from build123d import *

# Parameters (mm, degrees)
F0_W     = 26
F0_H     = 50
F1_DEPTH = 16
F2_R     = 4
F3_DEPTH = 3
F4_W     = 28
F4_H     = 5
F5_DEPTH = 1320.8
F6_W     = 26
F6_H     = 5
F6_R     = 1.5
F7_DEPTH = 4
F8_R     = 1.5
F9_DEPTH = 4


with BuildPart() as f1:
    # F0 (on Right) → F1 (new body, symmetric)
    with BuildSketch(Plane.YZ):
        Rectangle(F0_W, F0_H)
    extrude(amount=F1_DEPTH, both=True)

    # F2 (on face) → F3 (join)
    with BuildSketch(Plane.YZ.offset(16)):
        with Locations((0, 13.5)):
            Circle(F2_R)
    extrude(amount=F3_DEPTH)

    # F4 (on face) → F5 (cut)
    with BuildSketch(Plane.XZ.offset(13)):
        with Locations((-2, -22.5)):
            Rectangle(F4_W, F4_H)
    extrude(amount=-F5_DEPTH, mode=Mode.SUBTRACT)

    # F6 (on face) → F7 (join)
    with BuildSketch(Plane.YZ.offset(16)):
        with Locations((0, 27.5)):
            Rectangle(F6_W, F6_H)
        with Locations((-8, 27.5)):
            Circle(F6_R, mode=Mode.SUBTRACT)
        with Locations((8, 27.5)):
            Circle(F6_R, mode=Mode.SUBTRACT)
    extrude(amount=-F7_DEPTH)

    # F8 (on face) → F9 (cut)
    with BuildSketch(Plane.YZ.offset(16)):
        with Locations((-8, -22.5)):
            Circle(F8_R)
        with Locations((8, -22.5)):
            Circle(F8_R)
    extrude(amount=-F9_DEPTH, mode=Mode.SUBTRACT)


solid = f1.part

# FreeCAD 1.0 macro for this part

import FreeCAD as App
import Part
import Sketcher
Q = App.Units.Quantity

doc = App.newDocument("Part")
body = doc.addObject("PartDesign::Body", "Body")

sketch1 = body.newObject("Sketcher::SketchObject", "Sketch")
sketch1.AttachmentSupport = (doc.getObject("YZ_Plane"), [""])
sketch1.MapMode = "FlatFace"
sketch1.addGeometry([
    Part.LineSegment(App.Vector(-13, 25, 0), App.Vector(-13, -25, 0)),
    Part.LineSegment(App.Vector(-13, -25, 0), App.Vector(13, -25, 0)),
    Part.LineSegment(App.Vector(13, -25, 0), App.Vector(13, 25, 0)),
    Part.LineSegment(App.Vector(13, 25, 0), App.Vector(-13, 25, 0)),
], False)
sketch1.addConstraint([
    Sketcher.Constraint("Coincident", 0, 2, 1, 1),
    Sketcher.Constraint("Coincident", 1, 2, 2, 1),
    Sketcher.Constraint("Coincident", 2, 2, 3, 1),
    Sketcher.Constraint("Coincident", 3, 2, 0, 1),
    Sketcher.Constraint("Vertical", 0),
    Sketcher.Constraint("Horizontal", 1),
    Sketcher.Constraint("Vertical", 2),
    Sketcher.Constraint("Horizontal", 3),
    Sketcher.Constraint("Symmetric", 0, 2, 2, 2, -1, 1),
    Sketcher.Constraint("DistanceX", 1, 1, 1, 2, Q("26 mm")),
    Sketcher.Constraint("DistanceY", 0, 2, 0, 1, Q("50 mm")),
])
pad1 = body.newObject("PartDesign::Pad", "Pad")
pad1.Profile = sketch1
pad1.Length = 32
pad1.Midplane = True

sketch2 = body.newObject("Sketcher::SketchObject", "Sketch001")
sketch2.AttachmentSupport = (doc.getObject("YZ_Plane"), [""])
sketch2.MapMode = "FlatFace"
sketch2.AttachmentOffset = App.Placement(App.Vector(0, 0, 16), App.Rotation())
sketch2.addGeometry(Part.Circle(App.Vector(0, 13.5, 0), App.Vector(0, 0, 1), 4), False)
sketch2.addConstraint([
    Sketcher.Constraint("PointOnObject", 0, 3, -2),
    Sketcher.Constraint("Diameter", 0, Q("8 mm")),
    Sketcher.Constraint("DistanceY", -1, 1, 0, 3, Q("13.5 mm")),
])
pad2 = body.newObject("PartDesign::Pad", "Pad001")
pad2.Profile = sketch2
pad2.Length = 3

sketch3 = body.newObject("Sketcher::SketchObject", "Sketch002")
sketch3.AttachmentSupport = (doc.getObject("XZ_Plane"), [""])
sketch3.MapMode = "FlatFace"
sketch3.AttachmentOffset = App.Placement(App.Vector(0, 0, 13), App.Rotation())
sketch3.addGeometry([
    Part.LineSegment(App.Vector(-16, -20, 0), App.Vector(-16, -25, 0)),
    Part.LineSegment(App.Vector(-16, -25, 0), App.Vector(12, -25, 0)),
    Part.LineSegment(App.Vector(12, -25, 0), App.Vector(12, -20, 0)),
    Part.LineSegment(App.Vector(12, -20, 0), App.Vector(-16, -20, 0)),
], False)
sketch3.addConstraint([
    Sketcher.Constraint("Coincident", 0, 2, 1, 1),
    Sketcher.Constraint("Coincident", 1, 2, 2, 1),
    Sketcher.Constraint("Coincident", 2, 2, 3, 1),
    Sketcher.Constraint("Coincident", 3, 2, 0, 1),
    Sketcher.Constraint("Vertical", 0),
    Sketcher.Constraint("Horizontal", 1),
    Sketcher.Constraint("Vertical", 2),
    Sketcher.Constraint("Horizontal", 3),
    Sketcher.Constraint("DistanceX", 1, 1, 1, 2, Q("28 mm")),
    Sketcher.Constraint("DistanceY", 0, 2, 0, 1, Q("5 mm")),
    Sketcher.Constraint("DistanceX", 0, 2, -1, 1, Q("16 mm")),
    Sketcher.Constraint("DistanceY", 0, 2, -1, 1, Q("25 mm")),
])
pocket1 = body.newObject("PartDesign::Pocket", "Pocket")
pocket1.Profile = sketch3
pocket1.Length = 1320.8

sketch4 = body.newObject("Sketcher::SketchObject", "Sketch003")
sketch4.AttachmentSupport = (doc.getObject("YZ_Plane"), [""])
sketch4.MapMode = "FlatFace"
sketch4.AttachmentOffset = App.Placement(App.Vector(0, 0, 16), App.Rotation())
sketch4.addGeometry([
    Part.LineSegment(App.Vector(-13, 30, 0), App.Vector(-13, 25, 0)),
    Part.LineSegment(App.Vector(-13, 25, 0), App.Vector(13, 25, 0)),
    Part.LineSegment(App.Vector(13, 25, 0), App.Vector(13, 30, 0)),
    Part.LineSegment(App.Vector(13, 30, 0), App.Vector(-13, 30, 0)),
    Part.Circle(App.Vector(-8, 27.5, 0), App.Vector(0, 0, 1), 1.5),
    Part.Circle(App.Vector(8, 27.5, 0), App.Vector(0, 0, 1), 1.5),
], False)
sketch4.addConstraint([
    Sketcher.Constraint("Coincident", 0, 2, 1, 1),
    Sketcher.Constraint("Coincident", 1, 2, 2, 1),
    Sketcher.Constraint("Coincident", 2, 2, 3, 1),
    Sketcher.Constraint("Coincident", 3, 2, 0, 1),
    Sketcher.Constraint("Vertical", 0),
    Sketcher.Constraint("Horizontal", 1),
    Sketcher.Constraint("Vertical", 2),
    Sketcher.Constraint("Horizontal", 3),
    Sketcher.Constraint("Equal", 4, 5),
    Sketcher.Constraint("Symmetric", 4, 3, 5, 3, -2),
    Sketcher.Constraint("Diameter", 4, Q("3 mm")),
    Sketcher.Constraint("DistanceX", 1, 1, 1, 2, Q("26 mm")),
    Sketcher.Constraint("DistanceY", 0, 2, 0, 1, Q("5 mm")),
    Sketcher.Constraint("DistanceX", 4, 3, -1, 1, Q("8 mm")),
    Sketcher.Constraint("DistanceX", 0, 2, -1, 1, Q("13 mm")),
    Sketcher.Constraint("DistanceY", -1, 1, 0, 2, Q("25 mm")),
    Sketcher.Constraint("DistanceY", -1, 1, 4, 3, Q("27.5 mm")),
])
pad3 = body.newObject("PartDesign::Pad", "Pad002")
pad3.Profile = sketch4
pad3.Length = 4
pad3.Reversed = True

sketch5 = body.newObject("Sketcher::SketchObject", "Sketch004")
sketch5.AttachmentSupport = (doc.getObject("YZ_Plane"), [""])
sketch5.MapMode = "FlatFace"
sketch5.AttachmentOffset = App.Placement(App.Vector(0, 0, 16), App.Rotation())
sketch5.addGeometry([
    Part.Circle(App.Vector(-8, -22.5, 0), App.Vector(0, 0, 1), 1.5),
    Part.Circle(App.Vector(8, -22.5, 0), App.Vector(0, 0, 1), 1.5),
], False)
sketch5.addConstraint([
    Sketcher.Constraint("Equal", 0, 1),
    Sketcher.Constraint("Symmetric", 0, 3, 1, 3, -2),
    Sketcher.Constraint("Diameter", 0, Q("3 mm")),
    Sketcher.Constraint("DistanceX", 0, 3, -1, 1, Q("8 mm")),
    Sketcher.Constraint("DistanceY", 0, 3, -1, 1, Q("22.5 mm")),
])
pocket2 = body.newObject("PartDesign::Pocket", "Pocket001")
pocket2.Profile = sketch5
pocket2.Length = 4

doc.recompute()
